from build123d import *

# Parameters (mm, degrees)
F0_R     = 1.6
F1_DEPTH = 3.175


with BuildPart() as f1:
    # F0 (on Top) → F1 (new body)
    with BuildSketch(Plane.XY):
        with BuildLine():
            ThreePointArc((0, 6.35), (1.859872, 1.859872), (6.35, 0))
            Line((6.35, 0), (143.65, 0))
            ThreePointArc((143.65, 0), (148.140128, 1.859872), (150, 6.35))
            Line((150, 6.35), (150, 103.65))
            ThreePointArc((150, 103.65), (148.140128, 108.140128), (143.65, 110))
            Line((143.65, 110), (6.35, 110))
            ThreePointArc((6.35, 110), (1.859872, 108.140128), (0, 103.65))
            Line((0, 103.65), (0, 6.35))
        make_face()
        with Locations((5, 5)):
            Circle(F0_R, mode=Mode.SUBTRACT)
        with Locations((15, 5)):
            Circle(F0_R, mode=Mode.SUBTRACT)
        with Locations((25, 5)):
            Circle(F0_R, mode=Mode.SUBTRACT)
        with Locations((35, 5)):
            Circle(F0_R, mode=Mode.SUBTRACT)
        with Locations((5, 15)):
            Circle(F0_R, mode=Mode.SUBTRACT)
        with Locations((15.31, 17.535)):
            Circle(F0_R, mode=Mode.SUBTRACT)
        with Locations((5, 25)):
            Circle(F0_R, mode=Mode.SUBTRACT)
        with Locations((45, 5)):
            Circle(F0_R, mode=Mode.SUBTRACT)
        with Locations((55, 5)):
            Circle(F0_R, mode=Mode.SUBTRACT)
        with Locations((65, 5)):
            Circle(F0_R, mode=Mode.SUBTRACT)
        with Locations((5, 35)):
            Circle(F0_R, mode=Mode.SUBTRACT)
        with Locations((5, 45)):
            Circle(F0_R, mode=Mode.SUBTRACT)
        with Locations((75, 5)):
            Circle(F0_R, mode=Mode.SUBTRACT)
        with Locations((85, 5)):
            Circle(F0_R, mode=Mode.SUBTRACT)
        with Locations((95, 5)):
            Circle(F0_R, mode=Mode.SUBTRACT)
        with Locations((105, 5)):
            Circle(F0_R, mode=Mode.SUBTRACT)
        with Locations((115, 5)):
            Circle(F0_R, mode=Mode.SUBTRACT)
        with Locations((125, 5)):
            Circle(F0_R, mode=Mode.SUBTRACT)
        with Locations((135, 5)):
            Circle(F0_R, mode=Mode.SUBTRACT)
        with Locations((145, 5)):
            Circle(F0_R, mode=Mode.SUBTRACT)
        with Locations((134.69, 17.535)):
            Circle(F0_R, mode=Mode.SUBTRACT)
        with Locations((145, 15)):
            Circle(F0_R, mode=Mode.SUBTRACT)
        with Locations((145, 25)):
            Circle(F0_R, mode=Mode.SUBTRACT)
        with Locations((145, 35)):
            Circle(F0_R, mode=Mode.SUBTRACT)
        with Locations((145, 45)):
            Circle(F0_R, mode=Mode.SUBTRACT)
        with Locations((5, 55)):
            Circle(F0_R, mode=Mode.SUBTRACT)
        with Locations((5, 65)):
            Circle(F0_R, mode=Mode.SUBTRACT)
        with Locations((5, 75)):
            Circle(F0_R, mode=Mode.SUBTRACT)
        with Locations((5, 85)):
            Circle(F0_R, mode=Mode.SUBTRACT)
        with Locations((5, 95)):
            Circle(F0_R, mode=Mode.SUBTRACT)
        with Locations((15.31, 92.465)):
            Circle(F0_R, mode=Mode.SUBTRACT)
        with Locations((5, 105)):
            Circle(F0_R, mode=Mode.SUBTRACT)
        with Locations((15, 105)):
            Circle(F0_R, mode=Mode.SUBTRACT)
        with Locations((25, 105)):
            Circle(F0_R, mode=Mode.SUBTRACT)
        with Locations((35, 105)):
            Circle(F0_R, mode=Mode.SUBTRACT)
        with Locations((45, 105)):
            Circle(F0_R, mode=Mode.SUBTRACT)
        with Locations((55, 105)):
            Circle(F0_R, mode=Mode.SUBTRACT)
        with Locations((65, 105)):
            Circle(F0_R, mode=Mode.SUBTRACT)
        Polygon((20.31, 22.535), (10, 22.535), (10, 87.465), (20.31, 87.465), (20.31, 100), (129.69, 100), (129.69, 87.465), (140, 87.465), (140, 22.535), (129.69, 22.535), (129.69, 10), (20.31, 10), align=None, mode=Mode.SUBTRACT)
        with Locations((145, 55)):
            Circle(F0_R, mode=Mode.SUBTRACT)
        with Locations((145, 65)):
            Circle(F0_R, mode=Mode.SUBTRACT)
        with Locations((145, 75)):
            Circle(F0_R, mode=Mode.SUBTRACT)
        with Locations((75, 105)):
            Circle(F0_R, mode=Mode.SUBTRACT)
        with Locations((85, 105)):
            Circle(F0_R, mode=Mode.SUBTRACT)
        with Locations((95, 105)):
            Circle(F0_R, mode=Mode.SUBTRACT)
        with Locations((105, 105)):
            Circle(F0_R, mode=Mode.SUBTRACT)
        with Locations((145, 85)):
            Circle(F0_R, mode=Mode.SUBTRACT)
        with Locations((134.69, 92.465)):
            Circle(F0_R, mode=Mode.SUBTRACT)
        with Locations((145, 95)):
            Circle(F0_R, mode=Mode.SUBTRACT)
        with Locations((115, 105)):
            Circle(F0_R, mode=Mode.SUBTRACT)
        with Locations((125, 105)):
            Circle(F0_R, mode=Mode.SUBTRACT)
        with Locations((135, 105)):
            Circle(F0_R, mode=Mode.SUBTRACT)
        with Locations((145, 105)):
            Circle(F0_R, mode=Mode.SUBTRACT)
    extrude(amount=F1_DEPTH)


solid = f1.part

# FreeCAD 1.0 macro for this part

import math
import FreeCAD as App
import Part
import Sketcher

V = App.Vector

doc = App.newDocument("Part")
params = doc.addObject("Spreadsheet::Sheet", "Params")
for row, (alias, value) in enumerate([
    ("sketch1_diameter", "3.2 mm"),
    ("sketch1_radius", "6.35 mm"),
    ("sketch1_width", "137.3 mm"),
    ("sketch1_height", "97.3 mm"),
    ("sketch1_width2", "10.31 mm"),
    ("pad1_length", "3.175 mm"),
], start=1):
    params.set(f"A{row}", alias)
    params.set(f"B{row}", "=" + value)
    params.setAlias(f"B{row}", alias)

body = doc.addObject("PartDesign::Body", "Body")

# Sketch on XY plane
sketch1 = doc.addObject("Sketcher::SketchObject", "Sketch")
body.addObject(sketch1)
sketch1.AttachmentSupport = (doc.XY_Plane, [""])
sketch1.MapMode = "FlatFace"
sketch1.addGeometry([
    Part.ArcOfCircle(Part.Circle(V(6.35, 6.35, 0), V(0, 0, 1), 6.35), math.radians(-179.999998), math.radians(-90.000002)),  # 0
    Part.LineSegment(V(6.35, 0, 0), V(143.65, 0, 0)),  # 1
    Part.ArcOfCircle(Part.Circle(V(143.65, 6.35, 0), V(0, 0, 1), 6.35), math.radians(-89.999998), math.radians(-0.000002)),  # 2
    Part.LineSegment(V(150, 6.35, 0), V(150, 103.65, 0)),  # 3
    Part.ArcOfCircle(Part.Circle(V(143.65, 103.65, 0), V(0, 0, 1), 6.35), math.radians(0.000002), math.radians(89.999998)),  # 4
    Part.LineSegment(V(143.65, 110, 0), V(6.35, 110, 0)),  # 5
    Part.ArcOfCircle(Part.Circle(V(6.35, 103.65, 0), V(0, 0, 1), 6.35), math.radians(90.000002), math.radians(179.999998)),  # 6
    Part.LineSegment(V(0, 103.65, 0), V(0, 6.35, 0)),  # 7
    Part.Circle(V(5, 5, 0), V(0, 0, 1), 1.6),  # 8
    Part.Circle(V(15, 5, 0), V(0, 0, 1), 1.6),  # 9
    Part.Circle(V(5, 15, 0), V(0, 0, 1), 1.6),  # 10
    Part.Circle(V(25, 5, 0), V(0, 0, 1), 1.6),  # 11
    Part.Circle(V(35, 5, 0), V(0, 0, 1), 1.6),  # 12
    Part.Circle(V(15.31, 17.535, 0), V(0, 0, 1), 1.6),  # 13
    Part.Circle(V(5, 25, 0), V(0, 0, 1), 1.6),  # 14
    Part.Circle(V(45, 5, 0), V(0, 0, 1), 1.6),  # 15
    Part.Circle(V(55, 5, 0), V(0, 0, 1), 1.6),  # 16
    Part.Circle(V(65, 5, 0), V(0, 0, 1), 1.6),  # 17
    Part.Circle(V(5, 35, 0), V(0, 0, 1), 1.6),  # 18
    Part.Circle(V(5, 45, 0), V(0, 0, 1), 1.6),  # 19
    Part.Circle(V(75, 5, 0), V(0, 0, 1), 1.6),  # 20
    Part.Circle(V(85, 5, 0), V(0, 0, 1), 1.6),  # 21
    Part.Circle(V(95, 5, 0), V(0, 0, 1), 1.6),  # 22
    Part.Circle(V(105, 5, 0), V(0, 0, 1), 1.6),  # 23
    Part.Circle(V(115, 5, 0), V(0, 0, 1), 1.6),  # 24
    Part.Circle(V(125, 5, 0), V(0, 0, 1), 1.6),  # 25
    Part.Circle(V(135, 5, 0), V(0, 0, 1), 1.6),  # 26
    Part.Circle(V(145, 5, 0), V(0, 0, 1), 1.6),  # 27
    Part.Circle(V(145, 15, 0), V(0, 0, 1), 1.6),  # 28
    Part.Circle(V(134.69, 17.535, 0), V(0, 0, 1), 1.6),  # 29
    Part.Circle(V(145, 25, 0), V(0, 0, 1), 1.6),  # 30
    Part.Circle(V(145, 35, 0), V(0, 0, 1), 1.6),  # 31
    Part.Circle(V(145, 45, 0), V(0, 0, 1), 1.6),  # 32
    Part.Circle(V(5, 55, 0), V(0, 0, 1), 1.6),  # 33
    Part.Circle(V(5, 65, 0), V(0, 0, 1), 1.6),  # 34
    Part.Circle(V(5, 75, 0), V(0, 0, 1), 1.6),  # 35
    Part.Circle(V(5, 85, 0), V(0, 0, 1), 1.6),  # 36
    Part.Circle(V(15.31, 92.465, 0), V(0, 0, 1), 1.6),  # 37
    Part.Circle(V(5, 95, 0), V(0, 0, 1), 1.6),  # 38
    Part.Circle(V(5, 105, 0), V(0, 0, 1), 1.6),  # 39
    Part.Circle(V(15, 105, 0), V(0, 0, 1), 1.6),  # 40
    Part.Circle(V(25, 105, 0), V(0, 0, 1), 1.6),  # 41
    Part.Circle(V(35, 105, 0), V(0, 0, 1), 1.6),  # 42
    Part.Circle(V(45, 105, 0), V(0, 0, 1), 1.6),  # 43
    Part.Circle(V(55, 105, 0), V(0, 0, 1), 1.6),  # 44
    Part.Circle(V(65, 105, 0), V(0, 0, 1), 1.6),  # 45
    Part.LineSegment(V(20.31, 10, 0), V(20.31, 22.535, 0)),  # 46
    Part.LineSegment(V(20.31, 22.535, 0), V(10, 22.535, 0)),  # 47
    Part.LineSegment(V(10, 22.535, 0), V(10, 87.465, 0)),  # 48
    Part.LineSegment(V(10, 87.465, 0), V(20.31, 87.465, 0)),  # 49
    Part.LineSegment(V(20.31, 87.465, 0), V(20.31, 100, 0)),  # 50
    Part.LineSegment(V(20.31, 100, 0), V(129.69, 100, 0)),  # 51
    Part.LineSegment(V(129.69, 100, 0), V(129.69, 87.465, 0)),  # 52
    Part.LineSegment(V(129.69, 87.465, 0), V(140, 87.465, 0)),  # 53
    Part.LineSegment(V(140, 87.465, 0), V(140, 22.535, 0)),  # 54
    Part.LineSegment(V(140, 22.535, 0), V(129.69, 22.535, 0)),  # 55
    Part.LineSegment(V(129.69, 22.535, 0), V(129.69, 10, 0)),  # 56
    Part.LineSegment(V(129.69, 10, 0), V(20.31, 10, 0)),  # 57
    Part.Circle(V(145, 55, 0), V(0, 0, 1), 1.6),  # 58
    Part.Circle(V(145, 65, 0), V(0, 0, 1), 1.6),  # 59
    Part.Circle(V(145, 75, 0), V(0, 0, 1), 1.6),  # 60
    Part.Circle(V(75, 105, 0), V(0, 0, 1), 1.6),  # 61
    Part.Circle(V(85, 105, 0), V(0, 0, 1), 1.6),  # 62
    Part.Circle(V(95, 105, 0), V(0, 0, 1), 1.6),  # 63
    Part.Circle(V(105, 105, 0), V(0, 0, 1), 1.6),  # 64
    Part.Circle(V(145, 85, 0), V(0, 0, 1), 1.6),  # 65
    Part.Circle(V(134.69, 92.465, 0), V(0, 0, 1), 1.6),  # 66
    Part.Circle(V(115, 105, 0), V(0, 0, 1), 1.6),  # 67
    Part.Circle(V(125, 105, 0), V(0, 0, 1), 1.6),  # 68
    Part.Circle(V(145, 95, 0), V(0, 0, 1), 1.6),  # 69
    Part.Circle(V(135, 105, 0), V(0, 0, 1), 1.6),  # 70
    Part.Circle(V(145, 105, 0), V(0, 0, 1), 1.6),  # 71
], False)
sketch1.addConstraint([
    Sketcher.Constraint("Tangent", 0, 2, 1, 1),
    Sketcher.Constraint("Tangent", 1, 2, 2, 1),
    Sketcher.Constraint("Tangent", 2, 2, 3, 1),
    Sketcher.Constraint("Tangent", 3, 2, 4, 1),
    Sketcher.Constraint("Tangent", 4, 2, 5, 1),
    Sketcher.Constraint("Tangent", 5, 2, 6, 1),
    Sketcher.Constraint("Tangent", 6, 2, 7, 1),
    Sketcher.Constraint("Tangent", 7, 2, 0, 1),
    Sketcher.Constraint("Coincident", 46, 2, 47, 1),
    Sketcher.Constraint("Coincident", 47, 2, 48, 1),
    Sketcher.Constraint("Coincident", 48, 2, 49, 1),
    Sketcher.Constraint("Coincident", 49, 2, 50, 1),
    Sketcher.Constraint("Coincident", 50, 2, 51, 1),
    Sketcher.Constraint("Coincident", 51, 2, 52, 1),
    Sketcher.Constraint("Coincident", 52, 2, 53, 1),
    Sketcher.Constraint("Coincident", 53, 2, 54, 1),
    Sketcher.Constraint("Coincident", 54, 2, 55, 1),
    Sketcher.Constraint("Coincident", 55, 2, 56, 1),
    Sketcher.Constraint("Coincident", 56, 2, 57, 1),
    Sketcher.Constraint("Coincident", 57, 2, 46, 1),
    Sketcher.Constraint("Horizontal", 1),
    Sketcher.Constraint("Vertical", 3),
    Sketcher.Constraint("Horizontal", 5),
    Sketcher.Constraint("Vertical", 7),
    Sketcher.Constraint("Vertical", 46),
    Sketcher.Constraint("Horizontal", 47),
    Sketcher.Constraint("Vertical", 48),
    Sketcher.Constraint("Horizontal", 49),
    Sketcher.Constraint("Vertical", 50),
    Sketcher.Constraint("Horizontal", 51),
    Sketcher.Constraint("Vertical", 52),
    Sketcher.Constraint("Horizontal", 53),
    Sketcher.Constraint("Vertical", 54),
    Sketcher.Constraint("Horizontal", 55),
    Sketcher.Constraint("Vertical", 56),
    Sketcher.Constraint("Horizontal", 57),
    Sketcher.Constraint("Equal", 0, 2),
    Sketcher.Constraint("Equal", 2, 4),
    Sketcher.Constraint("Equal", 4, 6),
    Sketcher.Constraint("Equal", 8, 9),
    Sketcher.Constraint("Equal", 9, 10),
    Sketcher.Constraint("Equal", 10, 11),
    Sketcher.Constraint("Equal", 11, 12),
    Sketcher.Constraint("Equal", 12, 13),
    Sketcher.Constraint("Equal", 13, 14),
    Sketcher.Constraint("Equal", 14, 15),
    Sketcher.Constraint("Equal", 15, 16),
    Sketcher.Constraint("Equal", 16, 17),
    Sketcher.Constraint("Equal", 17, 18),
    Sketcher.Constraint("Equal", 18, 19),
    Sketcher.Constraint("Equal", 19, 20),
    Sketcher.Constraint("Equal", 20, 21),
    Sketcher.Constraint("Equal", 21, 22),
    Sketcher.Constraint("Equal", 22, 23),
    Sketcher.Constraint("Equal", 23, 24),
    Sketcher.Constraint("Equal", 24, 25),
    Sketcher.Constraint("Equal", 25, 26),
    Sketcher.Constraint("Equal", 26, 27),
    Sketcher.Constraint("Equal", 27, 28),
    Sketcher.Constraint("Equal", 28, 29),
    Sketcher.Constraint("Equal", 29, 30),
    Sketcher.Constraint("Equal", 30, 31),
    Sketcher.Constraint("Equal", 31, 32),
    Sketcher.Constraint("Equal", 32, 33),
    Sketcher.Constraint("Equal", 33, 34),
    Sketcher.Constraint("Equal", 34, 35),
    Sketcher.Constraint("Equal", 35, 36),
    Sketcher.Constraint("Equal", 36, 37),
    Sketcher.Constraint("Equal", 37, 38),
    Sketcher.Constraint("Equal", 38, 39),
    Sketcher.Constraint("Equal", 39, 40),
    Sketcher.Constraint("Equal", 40, 41),
    Sketcher.Constraint("Equal", 41, 42),
    Sketcher.Constraint("Equal", 42, 43),
    Sketcher.Constraint("Equal", 43, 44),
    Sketcher.Constraint("Equal", 44, 45),
    Sketcher.Constraint("Equal", 45, 58),
    Sketcher.Constraint("Equal", 58, 59),
    Sketcher.Constraint("Equal", 59, 60),
    Sketcher.Constraint("Equal", 60, 61),
    Sketcher.Constraint("Equal", 61, 62),
    Sketcher.Constraint("Equal", 62, 63),
    Sketcher.Constraint("Equal", 63, 64),
    Sketcher.Constraint("Equal", 64, 65),
    Sketcher.Constraint("Equal", 65, 66),
    Sketcher.Constraint("Equal", 66, 67),
    Sketcher.Constraint("Equal", 67, 68),
    Sketcher.Constraint("Equal", 68, 69),
    Sketcher.Constraint("Equal", 69, 70),
    Sketcher.Constraint("Equal", 70, 71),
    Sketcher.Constraint("PointOnObject", 0, 2, -1),
    Sketcher.Constraint("PointOnObject", 6, 2, -2),
    Sketcher.Constraint("Horizontal", 8, 3, 9, 3),
    Sketcher.Constraint("Horizontal", 9, 3, 11, 3),
    Sketcher.Constraint("Horizontal", 11, 3, 12, 3),
    Sketcher.Constraint("Horizontal", 12, 3, 15, 3),
    Sketcher.Constraint("Horizontal", 15, 3, 16, 3),
    Sketcher.Constraint("Horizontal", 16, 3, 17, 3),
    Sketcher.Constraint("Horizontal", 17, 3, 20, 3),
    Sketcher.Constraint("Horizontal", 20, 3, 21, 3),
    Sketcher.Constraint("Horizontal", 21, 3, 22, 3),
    Sketcher.Constraint("Horizontal", 22, 3, 23, 3),
    Sketcher.Constraint("Horizontal", 23, 3, 24, 3),
    Sketcher.Constraint("Horizontal", 24, 3, 25, 3),
    Sketcher.Constraint("Horizontal", 25, 3, 26, 3),
    Sketcher.Constraint("Horizontal", 26, 3, 27, 3),
    Sketcher.Constraint("Horizontal", 10, 3, 28, 3),
    Sketcher.Constraint("Horizontal", 13, 3, 29, 3),
    Sketcher.Constraint("Horizontal", 14, 3, 30, 3),
    Sketcher.Constraint("Horizontal", 18, 3, 31, 3),
    Sketcher.Constraint("Horizontal", 19, 3, 32, 3),
    Sketcher.Constraint("Horizontal", 39, 3, 40, 3),
    Sketcher.Constraint("Horizontal", 40, 3, 41, 3),
    Sketcher.Constraint("Horizontal", 41, 3, 42, 3),
    Sketcher.Constraint("Horizontal", 42, 3, 43, 3),
    Sketcher.Constraint("Horizontal", 43, 3, 44, 3),
    Sketcher.Constraint("Horizontal", 44, 3, 45, 3),
    Sketcher.Constraint("Horizontal", 33, 3, 58, 3),
    Sketcher.Constraint("Horizontal", 34, 3, 59, 3),
    Sketcher.Constraint("Horizontal", 35, 3, 60, 3),
    Sketcher.Constraint("Horizontal", 45, 3, 61, 3),
    Sketcher.Constraint("Horizontal", 61, 3, 62, 3),
    Sketcher.Constraint("Horizontal", 62, 3, 63, 3),
    Sketcher.Constraint("Horizontal", 63, 3, 64, 3),
    Sketcher.Constraint("Horizontal", 36, 3, 65, 3),
    Sketcher.Constraint("Horizontal", 37, 3, 66, 3),
    Sketcher.Constraint("Horizontal", 64, 3, 67, 3),
    Sketcher.Constraint("Horizontal", 67, 3, 68, 3),
    Sketcher.Constraint("Horizontal", 38, 3, 69, 3),
    Sketcher.Constraint("Horizontal", 68, 3, 70, 3),
    Sketcher.Constraint("Horizontal", 70, 3, 71, 3),
    Sketcher.Constraint("Horizontal", 49, 2, 52, 2),
    Sketcher.Constraint("Horizontal", 47, 2, 54, 2),
    Sketcher.Constraint("Vertical", 8, 3, 10, 3),
    Sketcher.Constraint("Vertical", 10, 3, 14, 3),
    Sketcher.Constraint("Vertical", 14, 3, 18, 3),
    Sketcher.Constraint("Vertical", 18, 3, 19, 3),
    Sketcher.Constraint("Vertical", 27, 3, 28, 3),
    Sketcher.Constraint("Vertical", 28, 3, 30, 3),
    Sketcher.Constraint("Vertical", 30, 3, 31, 3),
    Sketcher.Constraint("Vertical", 31, 3, 32, 3),
    Sketcher.Constraint("Vertical", 19, 3, 33, 3),
    Sketcher.Constraint("Vertical", 33, 3, 34, 3),
    Sketcher.Constraint("Vertical", 34, 3, 35, 3),
    Sketcher.Constraint("Vertical", 35, 3, 36, 3),
    Sketcher.Constraint("Vertical", 13, 3, 37, 3),
    Sketcher.Constraint("Vertical", 36, 3, 38, 3),
    Sketcher.Constraint("Vertical", 38, 3, 39, 3),
    Sketcher.Constraint("Vertical", 9, 3, 40, 3),
    Sketcher.Constraint("Vertical", 11, 3, 41, 3),
    Sketcher.Constraint("Vertical", 12, 3, 42, 3),
    Sketcher.Constraint("Vertical", 15, 3, 43, 3),
    Sketcher.Constraint("Vertical", 16, 3, 44, 3),
    Sketcher.Constraint("Vertical", 17, 3, 45, 3),
    Sketcher.Constraint("Vertical", 32, 3, 58, 3),
    Sketcher.Constraint("Vertical", 58, 3, 59, 3),
    Sketcher.Constraint("Vertical", 59, 3, 60, 3),
    Sketcher.Constraint("Vertical", 20, 3, 61, 3),
    Sketcher.Constraint("Vertical", 21, 3, 62, 3),
    Sketcher.Constraint("Vertical", 22, 3, 63, 3),
    Sketcher.Constraint("Vertical", 23, 3, 64, 3),
    Sketcher.Constraint("Vertical", 60, 3, 65, 3),
    Sketcher.Constraint("Vertical", 29, 3, 66, 3),
    Sketcher.Constraint("Vertical", 24, 3, 67, 3),
    Sketcher.Constraint("Vertical", 25, 3, 68, 3),
    Sketcher.Constraint("Vertical", 65, 3, 69, 3),
    Sketcher.Constraint("Vertical", 26, 3, 70, 3),
    Sketcher.Constraint("Vertical", 69, 3, 71, 3),
    Sketcher.Constraint("Vertical", 46, 2, 49, 2),
    Sketcher.Constraint("Vertical", 52, 2, 55, 2),
    Sketcher.Constraint("Equal", 49, 53),
    Sketcher.Constraint("Equal", 46, 50),
    Sketcher.Constraint("Diameter", 8, 3.2),
    Sketcher.Constraint("Radius", 0, 6.35),
    Sketcher.Constraint("DistanceX", 1, 1, 1, 2, 137.3),
    Sketcher.Constraint("DistanceY", 3, 1, 3, 2, 97.3),
    Sketcher.Constraint("DistanceX", -1, 1, 8, 3, 5.0),
    Sketcher.Constraint("DistanceY", -1, 1, 8, 3, 5.0),
    Sketcher.Constraint("DistanceX", -1, 1, 9, 3, 15.0),
    Sketcher.Constraint("DistanceY", -1, 1, 10, 3, 15.0),
    Sketcher.Constraint("DistanceX", -1, 1, 11, 3, 25.0),
    Sketcher.Constraint("DistanceX", -1, 1, 12, 3, 35.0),
    Sketcher.Constraint("DistanceY", -1, 1, 14, 3, 25.0),
    Sketcher.Constraint("DistanceX", -1, 1, 15, 3, 45.0),
    Sketcher.Constraint("DistanceX", -1, 1, 16, 3, 55.0),
    Sketcher.Constraint("DistanceX", -1, 1, 17, 3, 65.0),
    Sketcher.Constraint("DistanceY", -1, 1, 18, 3, 35.0),
    Sketcher.Constraint("DistanceY", -1, 1, 19, 3, 45.0),
    Sketcher.Constraint("DistanceX", -1, 1, 20, 3, 75.0),
    Sketcher.Constraint("DistanceX", -1, 1, 21, 3, 85.0),
    Sketcher.Constraint("DistanceX", -1, 1, 22, 3, 95.0),
    Sketcher.Constraint("DistanceX", -1, 1, 23, 3, 105.0),
    Sketcher.Constraint("DistanceX", -1, 1, 24, 3, 115.0),
    Sketcher.Constraint("DistanceX", -1, 1, 25, 3, 125.0),
    Sketcher.Constraint("DistanceX", -1, 1, 26, 3, 135.0),
    Sketcher.Constraint("DistanceX", -1, 1, 27, 3, 145.0),
    Sketcher.Constraint("DistanceY", -1, 1, 33, 3, 55.0),
    Sketcher.Constraint("DistanceY", -1, 1, 34, 3, 65.0),
    Sketcher.Constraint("DistanceY", -1, 1, 35, 3, 75.0),
    Sketcher.Constraint("DistanceY", -1, 1, 36, 3, 85.0),
    Sketcher.Constraint("DistanceY", -1, 1, 38, 3, 95.0),
    Sketcher.Constraint("DistanceY", -1, 1, 39, 3, 105.0),
    Sketcher.Constraint("DistanceX", -1, 1, 47, 2, 10.0),
    Sketcher.Constraint("DistanceY", -1, 1, 50, 2, 100.0),
    Sketcher.Constraint("DistanceX", -1, 1, 53, 2, 140.0),
    Sketcher.Constraint("DistanceY", -1, 1, 56, 2, 10.0),
    Sketcher.Constraint("DistanceX", 47, 2, 47, 1, 10.31),
    Sketcher.Constraint("DistanceY", 48, 1, 48, 2, 64.93),
    Sketcher.Constraint("DistanceX", -1, 1, 13, 3, 15.31),
    Sketcher.Constraint("DistanceX", -1, 1, 29, 3, 134.69),
    Sketcher.Constraint("DistanceY", -1, 1, 13, 3, 17.535),
    Sketcher.Constraint("DistanceY", -1, 1, 37, 3, 92.465),
])
sketch1.setExpression("Constraints[172]", "Params.sketch1_diameter")
sketch1.setExpression("Constraints[173]", "Params.sketch1_radius")
sketch1.setExpression("Constraints[174]", "Params.sketch1_width")
sketch1.setExpression("Constraints[175]", "Params.sketch1_height")
sketch1.setExpression("Constraints[206]", "Params.sketch1_width2")
pad1 = doc.addObject("PartDesign::Pad", "Pad")
body.addObject(pad1)
pad1.Profile = sketch1
pad1.setExpression("Length", "Params.pad1_length")

doc.recompute()
